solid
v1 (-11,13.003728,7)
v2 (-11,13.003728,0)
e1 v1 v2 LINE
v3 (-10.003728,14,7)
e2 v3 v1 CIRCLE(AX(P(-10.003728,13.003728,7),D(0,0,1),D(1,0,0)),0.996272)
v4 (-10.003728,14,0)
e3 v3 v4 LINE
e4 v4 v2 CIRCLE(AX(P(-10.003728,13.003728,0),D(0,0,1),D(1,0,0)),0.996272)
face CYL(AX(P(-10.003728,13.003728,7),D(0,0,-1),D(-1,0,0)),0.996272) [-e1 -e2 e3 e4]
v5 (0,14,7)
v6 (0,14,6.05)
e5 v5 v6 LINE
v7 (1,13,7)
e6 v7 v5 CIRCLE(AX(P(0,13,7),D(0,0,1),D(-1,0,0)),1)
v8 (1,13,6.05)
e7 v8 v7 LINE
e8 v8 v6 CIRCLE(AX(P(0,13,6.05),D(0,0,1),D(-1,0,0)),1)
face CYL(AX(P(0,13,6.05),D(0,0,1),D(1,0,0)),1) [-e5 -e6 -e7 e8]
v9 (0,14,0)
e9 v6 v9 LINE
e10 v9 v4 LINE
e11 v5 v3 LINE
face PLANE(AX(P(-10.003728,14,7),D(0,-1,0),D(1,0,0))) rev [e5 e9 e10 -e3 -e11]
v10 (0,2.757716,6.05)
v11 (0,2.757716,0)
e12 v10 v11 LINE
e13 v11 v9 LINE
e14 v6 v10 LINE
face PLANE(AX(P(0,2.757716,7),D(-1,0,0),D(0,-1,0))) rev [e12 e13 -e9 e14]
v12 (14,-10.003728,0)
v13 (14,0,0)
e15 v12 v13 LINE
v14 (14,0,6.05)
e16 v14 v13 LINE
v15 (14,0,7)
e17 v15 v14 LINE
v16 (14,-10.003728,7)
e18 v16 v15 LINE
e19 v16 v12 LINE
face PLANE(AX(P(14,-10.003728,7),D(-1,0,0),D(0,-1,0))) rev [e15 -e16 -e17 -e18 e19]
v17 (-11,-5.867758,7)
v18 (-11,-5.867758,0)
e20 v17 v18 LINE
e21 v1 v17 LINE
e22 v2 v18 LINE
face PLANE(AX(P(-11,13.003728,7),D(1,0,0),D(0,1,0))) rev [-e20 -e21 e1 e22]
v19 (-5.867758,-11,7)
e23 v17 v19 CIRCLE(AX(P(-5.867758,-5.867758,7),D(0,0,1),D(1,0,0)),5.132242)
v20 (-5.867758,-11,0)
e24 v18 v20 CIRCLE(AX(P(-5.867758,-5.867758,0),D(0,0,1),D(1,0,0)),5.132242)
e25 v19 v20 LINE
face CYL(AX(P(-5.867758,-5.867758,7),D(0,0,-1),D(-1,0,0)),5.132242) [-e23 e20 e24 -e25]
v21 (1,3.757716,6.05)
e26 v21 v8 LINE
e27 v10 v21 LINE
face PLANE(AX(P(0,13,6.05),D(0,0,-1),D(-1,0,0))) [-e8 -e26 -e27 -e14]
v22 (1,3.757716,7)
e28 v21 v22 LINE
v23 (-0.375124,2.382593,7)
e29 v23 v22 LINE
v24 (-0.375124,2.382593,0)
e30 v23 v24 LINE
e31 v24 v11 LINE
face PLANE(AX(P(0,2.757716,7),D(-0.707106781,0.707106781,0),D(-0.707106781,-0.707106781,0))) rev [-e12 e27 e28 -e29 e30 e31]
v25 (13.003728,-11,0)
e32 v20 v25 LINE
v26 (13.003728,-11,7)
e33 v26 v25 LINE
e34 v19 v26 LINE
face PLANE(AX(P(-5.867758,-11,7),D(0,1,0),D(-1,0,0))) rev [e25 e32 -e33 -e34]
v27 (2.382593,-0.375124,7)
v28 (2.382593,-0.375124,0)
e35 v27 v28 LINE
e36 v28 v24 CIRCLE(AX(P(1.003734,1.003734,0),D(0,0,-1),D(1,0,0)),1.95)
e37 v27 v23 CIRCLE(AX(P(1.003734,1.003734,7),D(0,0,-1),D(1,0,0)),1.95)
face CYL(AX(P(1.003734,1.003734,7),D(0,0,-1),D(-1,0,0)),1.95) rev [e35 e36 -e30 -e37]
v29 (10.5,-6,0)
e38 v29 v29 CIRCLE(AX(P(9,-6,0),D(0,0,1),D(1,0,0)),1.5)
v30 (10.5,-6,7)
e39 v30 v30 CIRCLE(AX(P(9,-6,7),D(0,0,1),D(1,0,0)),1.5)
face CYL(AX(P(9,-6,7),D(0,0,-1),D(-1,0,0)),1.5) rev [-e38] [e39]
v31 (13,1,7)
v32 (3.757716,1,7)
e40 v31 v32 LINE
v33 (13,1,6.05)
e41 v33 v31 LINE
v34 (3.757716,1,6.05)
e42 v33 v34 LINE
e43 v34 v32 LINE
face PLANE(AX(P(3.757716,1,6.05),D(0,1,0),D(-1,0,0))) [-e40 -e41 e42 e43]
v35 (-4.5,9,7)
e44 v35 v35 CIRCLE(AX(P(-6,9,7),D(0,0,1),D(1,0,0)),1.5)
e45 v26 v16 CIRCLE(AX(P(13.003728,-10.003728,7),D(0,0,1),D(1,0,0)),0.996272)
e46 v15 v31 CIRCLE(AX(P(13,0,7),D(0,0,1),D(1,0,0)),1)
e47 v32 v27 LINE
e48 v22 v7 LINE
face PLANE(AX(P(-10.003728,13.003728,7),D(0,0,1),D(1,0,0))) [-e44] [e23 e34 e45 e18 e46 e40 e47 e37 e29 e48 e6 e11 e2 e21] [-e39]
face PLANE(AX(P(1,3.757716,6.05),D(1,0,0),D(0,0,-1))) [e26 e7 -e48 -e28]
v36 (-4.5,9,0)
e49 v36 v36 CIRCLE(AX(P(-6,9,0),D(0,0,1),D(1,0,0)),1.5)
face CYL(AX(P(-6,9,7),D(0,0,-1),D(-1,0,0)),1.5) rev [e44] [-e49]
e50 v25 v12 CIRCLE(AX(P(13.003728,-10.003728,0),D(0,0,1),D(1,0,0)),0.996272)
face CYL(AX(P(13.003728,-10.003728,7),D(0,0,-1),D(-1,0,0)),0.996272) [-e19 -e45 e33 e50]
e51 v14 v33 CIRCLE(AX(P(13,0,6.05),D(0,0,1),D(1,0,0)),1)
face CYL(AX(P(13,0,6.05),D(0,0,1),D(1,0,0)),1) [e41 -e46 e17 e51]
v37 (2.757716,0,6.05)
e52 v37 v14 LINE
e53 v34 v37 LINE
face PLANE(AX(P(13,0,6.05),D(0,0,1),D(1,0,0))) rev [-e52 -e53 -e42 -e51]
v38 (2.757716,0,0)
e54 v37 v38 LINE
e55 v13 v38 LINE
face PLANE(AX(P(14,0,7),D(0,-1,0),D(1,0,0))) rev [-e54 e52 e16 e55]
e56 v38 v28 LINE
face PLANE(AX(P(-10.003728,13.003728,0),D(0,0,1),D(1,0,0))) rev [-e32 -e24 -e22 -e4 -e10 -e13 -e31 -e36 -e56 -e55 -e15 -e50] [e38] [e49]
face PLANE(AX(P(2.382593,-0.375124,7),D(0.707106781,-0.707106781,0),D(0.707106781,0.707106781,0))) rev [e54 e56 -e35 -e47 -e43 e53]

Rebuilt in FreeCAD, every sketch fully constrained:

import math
import FreeCAD as App
import Part
import Sketcher
Q = App.Units.Quantity

doc = App.newDocument("Part")
body = doc.addObject("PartDesign::Body", "Body")

sketch1 = body.newObject("Sketcher::SketchObject", "Sketch")
sketch1.AttachmentSupport = (doc.getObject("XY_Plane"), [""])
sketch1.MapMode = "FlatFace"
sketch1.addGeometry([
    Part.LineSegment(App.Vector(-11, 13, 0), App.Vector(-11, -5.9, 0)),
    Part.ArcOfCircle(Part.Circle(App.Vector(-5.9, -5.9, 0), App.Vector(0, 0, 1), 5.1), math.radians(180), math.radians(270)),
    Part.LineSegment(App.Vector(-5.9, -11, 0), App.Vector(13, -11, 0)),
    Part.ArcOfCircle(Part.Circle(App.Vector(13, -10, 0), App.Vector(0, 0, 1), 1), math.radians(-90), math.radians(0)),
    Part.LineSegment(App.Vector(14, -10, 0), App.Vector(14, 0, 0)),
    Part.LineSegment(App.Vector(14, 0, 0), App.Vector(2.8, 0, 0)),
    Part.LineSegment(App.Vector(2.8, 0, 0), App.Vector(2.4, -0.4, 0)),
    Part.ArcOfCircle(Part.Circle(App.Vector(1, 1, 0), App.Vector(0, 0, 1), 1.9), math.radians(135), math.radians(315)),
    Part.LineSegment(App.Vector(-0.4, 2.4, 0), App.Vector(0, 2.8, 0)),
    Part.LineSegment(App.Vector(0, 2.8, 0), App.Vector(0, 14, 0)),
    Part.LineSegment(App.Vector(0, 14, 0), App.Vector(-10, 14, 0)),
    Part.ArcOfCircle(Part.Circle(App.Vector(-10, 13, 0), App.Vector(0, 0, 1), 1), math.radians(90), math.radians(180)),
    Part.Circle(App.Vector(9, -6, 0), App.Vector(0, 0, 1), 1.5),
    Part.Circle(App.Vector(-6, 9, 0), App.Vector(0, 0, 1), 1.5),
], False)
sketch1.addConstraint([
    Sketcher.Constraint("Tangent", 0, 2, 1, 1),
    Sketcher.Constraint("Tangent", 1, 2, 2, 1),
    Sketcher.Constraint("Tangent", 2, 2, 3, 1),
    Sketcher.Constraint("Tangent", 3, 2, 4, 1),
    Sketcher.Constraint("Coincident", 4, 2, 5, 1),
    Sketcher.Constraint("Coincident", 5, 2, 6, 1),
    Sketcher.Constraint("Tangent", 6, 2, 7, 2),
    Sketcher.Constraint("Tangent", 7, 1, 8, 1),
    Sketcher.Constraint("Coincident", 8, 2, 9, 1),
    Sketcher.Constraint("Coincident", 9, 2, 10, 1),
    Sketcher.Constraint("Tangent", 10, 2, 11, 1),
    Sketcher.Constraint("Tangent", 11, 2, 0, 1),
    Sketcher.Constraint("Vertical", 0),
    Sketcher.Constraint("Horizontal", 2),
    Sketcher.Constraint("Vertical", 4),
    Sketcher.Constraint("Horizontal", 5),
    Sketcher.Constraint("Vertical", 9),
    Sketcher.Constraint("Horizontal", 10),
    Sketcher.Constraint("Equal", 3, 11),
    Sketcher.Constraint("Equal", 12, 13),
    Sketcher.Constraint("PointOnObject", 4, 2, -1),
    Sketcher.Constraint("PointOnObject", 8, 2, -2),
    Sketcher.Constraint("Parallel", 6, 8),
    Sketcher.Constraint("Equal", 2, 0),
    Sketcher.Constraint("Equal", 10, 4),
    Sketcher.Constraint("Equal", 5, 9),
    Sketcher.Constraint("Equal", 6, 8),
    Sketcher.Constraint("Diameter", 12, Q("3 mm")),
    Sketcher.Constraint("Radius", 7, Q("1.95 mm")),
    Sketcher.Constraint("DistanceX", -1, 1, 12, 3, Q("9 mm")),
    Sketcher.Constraint("DistanceY", 12, 3, -1, 1, Q("6 mm")),
    Sketcher.Constraint("DistanceX", 13, 3, -1, 1, Q("6 mm")),
    Sketcher.Constraint("DistanceY", -1, 1, 13, 3, Q("9 mm")),
    Sketcher.Constraint("DistanceX", 0, 2, -1, 1, Q("11 mm")),
    Sketcher.Constraint("DistanceX", -1, 1, 3, 2, Q("14 mm")),
    Sketcher.Constraint("Radius", 1, Q("5.132242 mm")),
    Sketcher.Constraint("Radius", 3, Q("0.996272 mm")),
    Sketcher.Constraint("DistanceX", 7, 3, 5, 2, Q("1.753982 mm")),
])
pad1 = body.newObject("PartDesign::Pad", "Pad")
pad1.Profile = sketch1
pad1.Length = 7

sketch2 = body.newObject("Sketcher::SketchObject", "Sketch001")
sketch2.AttachmentSupport = (doc.getObject("XY_Plane"), [""])
sketch2.MapMode = "FlatFace"
sketch2.AttachmentOffset = App.Placement(App.Vector(0, 0, 7), App.Rotation())
sketch2.addGeometry([
    Part.LineSegment(App.Vector(3.8, 1, 0), App.Vector(2.8, 0, 0)),
    Part.LineSegment(App.Vector(2.8, 0, 0), App.Vector(14, 0, 0)),
    Part.ArcOfCircle(Part.Circle(App.Vector(13, 0, 0), App.Vector(0, 0, 1), 1), math.radians(0), math.radians(90)),
    Part.LineSegment(App.Vector(13, 1, 0), App.Vector(3.8, 1, 0)),
    Part.LineSegment(App.Vector(0, 2.8, 0), App.Vector(1, 3.8, 0)),
    Part.LineSegment(App.Vector(1, 3.8, 0), App.Vector(1, 13, 0)),
    Part.ArcOfCircle(Part.Circle(App.Vector(0, 13, 0), App.Vector(0, 0, 1), 1), math.radians(0), math.radians(90)),
    Part.LineSegment(App.Vector(0, 14, 0), App.Vector(0, 2.8, 0)),
], False)
sketch2.addConstraint([
    Sketcher.Constraint("Coincident", 0, 2, 1, 1),
    Sketcher.Constraint("Coincident", 1, 2, 2, 1),
    Sketcher.Constraint("Tangent", 2, 2, 3, 1),
    Sketcher.Constraint("Coincident", 3, 2, 0, 1),
    Sketcher.Constraint("Coincident", 4, 2, 5, 1),
    Sketcher.Constraint("Tangent", 5, 2, 6, 1),
    Sketcher.Constraint("Coincident", 6, 2, 7, 1),
    Sketcher.Constraint("Coincident", 7, 2, 4, 1),
    Sketcher.Constraint("Horizontal", 1),
    Sketcher.Constraint("Horizontal", 3),
    Sketcher.Constraint("Vertical", 5),
    Sketcher.Constraint("Vertical", 7),
    Sketcher.Constraint("Equal", 2, 6),
    Sketcher.Constraint("PointOnObject", 2, 3, -1),
    Sketcher.Constraint("PointOnObject", 6, 3, -2),
    Sketcher.Constraint("PointOnObject", 0, 2, -1),
    Sketcher.Constraint("PointOnObject", 6, 2, -2),
    Sketcher.Constraint("Parallel", 0, 4),
    Sketcher.Constraint("Equal", 3, 5),
    Sketcher.Constraint("Equal", 1, 7),
    Sketcher.Constraint("Radius", 2, Q("1 mm")),
    Sketcher.Constraint("DistanceX", -1, 1, 2, 3, Q("13 mm")),
    Sketcher.Constraint("DistanceY", -1, 1, 6, 3, Q("13 mm")),
    Sketcher.Constraint("DistanceX", 1, 1, 1, 2, Q("11.242284 mm")),
])
pad2 = body.newObject("PartDesign::Pad", "Pad001")
pad2.Profile = sketch2
pad2.Length = 0.95
pad2.Reversed = True

doc.recompute()
